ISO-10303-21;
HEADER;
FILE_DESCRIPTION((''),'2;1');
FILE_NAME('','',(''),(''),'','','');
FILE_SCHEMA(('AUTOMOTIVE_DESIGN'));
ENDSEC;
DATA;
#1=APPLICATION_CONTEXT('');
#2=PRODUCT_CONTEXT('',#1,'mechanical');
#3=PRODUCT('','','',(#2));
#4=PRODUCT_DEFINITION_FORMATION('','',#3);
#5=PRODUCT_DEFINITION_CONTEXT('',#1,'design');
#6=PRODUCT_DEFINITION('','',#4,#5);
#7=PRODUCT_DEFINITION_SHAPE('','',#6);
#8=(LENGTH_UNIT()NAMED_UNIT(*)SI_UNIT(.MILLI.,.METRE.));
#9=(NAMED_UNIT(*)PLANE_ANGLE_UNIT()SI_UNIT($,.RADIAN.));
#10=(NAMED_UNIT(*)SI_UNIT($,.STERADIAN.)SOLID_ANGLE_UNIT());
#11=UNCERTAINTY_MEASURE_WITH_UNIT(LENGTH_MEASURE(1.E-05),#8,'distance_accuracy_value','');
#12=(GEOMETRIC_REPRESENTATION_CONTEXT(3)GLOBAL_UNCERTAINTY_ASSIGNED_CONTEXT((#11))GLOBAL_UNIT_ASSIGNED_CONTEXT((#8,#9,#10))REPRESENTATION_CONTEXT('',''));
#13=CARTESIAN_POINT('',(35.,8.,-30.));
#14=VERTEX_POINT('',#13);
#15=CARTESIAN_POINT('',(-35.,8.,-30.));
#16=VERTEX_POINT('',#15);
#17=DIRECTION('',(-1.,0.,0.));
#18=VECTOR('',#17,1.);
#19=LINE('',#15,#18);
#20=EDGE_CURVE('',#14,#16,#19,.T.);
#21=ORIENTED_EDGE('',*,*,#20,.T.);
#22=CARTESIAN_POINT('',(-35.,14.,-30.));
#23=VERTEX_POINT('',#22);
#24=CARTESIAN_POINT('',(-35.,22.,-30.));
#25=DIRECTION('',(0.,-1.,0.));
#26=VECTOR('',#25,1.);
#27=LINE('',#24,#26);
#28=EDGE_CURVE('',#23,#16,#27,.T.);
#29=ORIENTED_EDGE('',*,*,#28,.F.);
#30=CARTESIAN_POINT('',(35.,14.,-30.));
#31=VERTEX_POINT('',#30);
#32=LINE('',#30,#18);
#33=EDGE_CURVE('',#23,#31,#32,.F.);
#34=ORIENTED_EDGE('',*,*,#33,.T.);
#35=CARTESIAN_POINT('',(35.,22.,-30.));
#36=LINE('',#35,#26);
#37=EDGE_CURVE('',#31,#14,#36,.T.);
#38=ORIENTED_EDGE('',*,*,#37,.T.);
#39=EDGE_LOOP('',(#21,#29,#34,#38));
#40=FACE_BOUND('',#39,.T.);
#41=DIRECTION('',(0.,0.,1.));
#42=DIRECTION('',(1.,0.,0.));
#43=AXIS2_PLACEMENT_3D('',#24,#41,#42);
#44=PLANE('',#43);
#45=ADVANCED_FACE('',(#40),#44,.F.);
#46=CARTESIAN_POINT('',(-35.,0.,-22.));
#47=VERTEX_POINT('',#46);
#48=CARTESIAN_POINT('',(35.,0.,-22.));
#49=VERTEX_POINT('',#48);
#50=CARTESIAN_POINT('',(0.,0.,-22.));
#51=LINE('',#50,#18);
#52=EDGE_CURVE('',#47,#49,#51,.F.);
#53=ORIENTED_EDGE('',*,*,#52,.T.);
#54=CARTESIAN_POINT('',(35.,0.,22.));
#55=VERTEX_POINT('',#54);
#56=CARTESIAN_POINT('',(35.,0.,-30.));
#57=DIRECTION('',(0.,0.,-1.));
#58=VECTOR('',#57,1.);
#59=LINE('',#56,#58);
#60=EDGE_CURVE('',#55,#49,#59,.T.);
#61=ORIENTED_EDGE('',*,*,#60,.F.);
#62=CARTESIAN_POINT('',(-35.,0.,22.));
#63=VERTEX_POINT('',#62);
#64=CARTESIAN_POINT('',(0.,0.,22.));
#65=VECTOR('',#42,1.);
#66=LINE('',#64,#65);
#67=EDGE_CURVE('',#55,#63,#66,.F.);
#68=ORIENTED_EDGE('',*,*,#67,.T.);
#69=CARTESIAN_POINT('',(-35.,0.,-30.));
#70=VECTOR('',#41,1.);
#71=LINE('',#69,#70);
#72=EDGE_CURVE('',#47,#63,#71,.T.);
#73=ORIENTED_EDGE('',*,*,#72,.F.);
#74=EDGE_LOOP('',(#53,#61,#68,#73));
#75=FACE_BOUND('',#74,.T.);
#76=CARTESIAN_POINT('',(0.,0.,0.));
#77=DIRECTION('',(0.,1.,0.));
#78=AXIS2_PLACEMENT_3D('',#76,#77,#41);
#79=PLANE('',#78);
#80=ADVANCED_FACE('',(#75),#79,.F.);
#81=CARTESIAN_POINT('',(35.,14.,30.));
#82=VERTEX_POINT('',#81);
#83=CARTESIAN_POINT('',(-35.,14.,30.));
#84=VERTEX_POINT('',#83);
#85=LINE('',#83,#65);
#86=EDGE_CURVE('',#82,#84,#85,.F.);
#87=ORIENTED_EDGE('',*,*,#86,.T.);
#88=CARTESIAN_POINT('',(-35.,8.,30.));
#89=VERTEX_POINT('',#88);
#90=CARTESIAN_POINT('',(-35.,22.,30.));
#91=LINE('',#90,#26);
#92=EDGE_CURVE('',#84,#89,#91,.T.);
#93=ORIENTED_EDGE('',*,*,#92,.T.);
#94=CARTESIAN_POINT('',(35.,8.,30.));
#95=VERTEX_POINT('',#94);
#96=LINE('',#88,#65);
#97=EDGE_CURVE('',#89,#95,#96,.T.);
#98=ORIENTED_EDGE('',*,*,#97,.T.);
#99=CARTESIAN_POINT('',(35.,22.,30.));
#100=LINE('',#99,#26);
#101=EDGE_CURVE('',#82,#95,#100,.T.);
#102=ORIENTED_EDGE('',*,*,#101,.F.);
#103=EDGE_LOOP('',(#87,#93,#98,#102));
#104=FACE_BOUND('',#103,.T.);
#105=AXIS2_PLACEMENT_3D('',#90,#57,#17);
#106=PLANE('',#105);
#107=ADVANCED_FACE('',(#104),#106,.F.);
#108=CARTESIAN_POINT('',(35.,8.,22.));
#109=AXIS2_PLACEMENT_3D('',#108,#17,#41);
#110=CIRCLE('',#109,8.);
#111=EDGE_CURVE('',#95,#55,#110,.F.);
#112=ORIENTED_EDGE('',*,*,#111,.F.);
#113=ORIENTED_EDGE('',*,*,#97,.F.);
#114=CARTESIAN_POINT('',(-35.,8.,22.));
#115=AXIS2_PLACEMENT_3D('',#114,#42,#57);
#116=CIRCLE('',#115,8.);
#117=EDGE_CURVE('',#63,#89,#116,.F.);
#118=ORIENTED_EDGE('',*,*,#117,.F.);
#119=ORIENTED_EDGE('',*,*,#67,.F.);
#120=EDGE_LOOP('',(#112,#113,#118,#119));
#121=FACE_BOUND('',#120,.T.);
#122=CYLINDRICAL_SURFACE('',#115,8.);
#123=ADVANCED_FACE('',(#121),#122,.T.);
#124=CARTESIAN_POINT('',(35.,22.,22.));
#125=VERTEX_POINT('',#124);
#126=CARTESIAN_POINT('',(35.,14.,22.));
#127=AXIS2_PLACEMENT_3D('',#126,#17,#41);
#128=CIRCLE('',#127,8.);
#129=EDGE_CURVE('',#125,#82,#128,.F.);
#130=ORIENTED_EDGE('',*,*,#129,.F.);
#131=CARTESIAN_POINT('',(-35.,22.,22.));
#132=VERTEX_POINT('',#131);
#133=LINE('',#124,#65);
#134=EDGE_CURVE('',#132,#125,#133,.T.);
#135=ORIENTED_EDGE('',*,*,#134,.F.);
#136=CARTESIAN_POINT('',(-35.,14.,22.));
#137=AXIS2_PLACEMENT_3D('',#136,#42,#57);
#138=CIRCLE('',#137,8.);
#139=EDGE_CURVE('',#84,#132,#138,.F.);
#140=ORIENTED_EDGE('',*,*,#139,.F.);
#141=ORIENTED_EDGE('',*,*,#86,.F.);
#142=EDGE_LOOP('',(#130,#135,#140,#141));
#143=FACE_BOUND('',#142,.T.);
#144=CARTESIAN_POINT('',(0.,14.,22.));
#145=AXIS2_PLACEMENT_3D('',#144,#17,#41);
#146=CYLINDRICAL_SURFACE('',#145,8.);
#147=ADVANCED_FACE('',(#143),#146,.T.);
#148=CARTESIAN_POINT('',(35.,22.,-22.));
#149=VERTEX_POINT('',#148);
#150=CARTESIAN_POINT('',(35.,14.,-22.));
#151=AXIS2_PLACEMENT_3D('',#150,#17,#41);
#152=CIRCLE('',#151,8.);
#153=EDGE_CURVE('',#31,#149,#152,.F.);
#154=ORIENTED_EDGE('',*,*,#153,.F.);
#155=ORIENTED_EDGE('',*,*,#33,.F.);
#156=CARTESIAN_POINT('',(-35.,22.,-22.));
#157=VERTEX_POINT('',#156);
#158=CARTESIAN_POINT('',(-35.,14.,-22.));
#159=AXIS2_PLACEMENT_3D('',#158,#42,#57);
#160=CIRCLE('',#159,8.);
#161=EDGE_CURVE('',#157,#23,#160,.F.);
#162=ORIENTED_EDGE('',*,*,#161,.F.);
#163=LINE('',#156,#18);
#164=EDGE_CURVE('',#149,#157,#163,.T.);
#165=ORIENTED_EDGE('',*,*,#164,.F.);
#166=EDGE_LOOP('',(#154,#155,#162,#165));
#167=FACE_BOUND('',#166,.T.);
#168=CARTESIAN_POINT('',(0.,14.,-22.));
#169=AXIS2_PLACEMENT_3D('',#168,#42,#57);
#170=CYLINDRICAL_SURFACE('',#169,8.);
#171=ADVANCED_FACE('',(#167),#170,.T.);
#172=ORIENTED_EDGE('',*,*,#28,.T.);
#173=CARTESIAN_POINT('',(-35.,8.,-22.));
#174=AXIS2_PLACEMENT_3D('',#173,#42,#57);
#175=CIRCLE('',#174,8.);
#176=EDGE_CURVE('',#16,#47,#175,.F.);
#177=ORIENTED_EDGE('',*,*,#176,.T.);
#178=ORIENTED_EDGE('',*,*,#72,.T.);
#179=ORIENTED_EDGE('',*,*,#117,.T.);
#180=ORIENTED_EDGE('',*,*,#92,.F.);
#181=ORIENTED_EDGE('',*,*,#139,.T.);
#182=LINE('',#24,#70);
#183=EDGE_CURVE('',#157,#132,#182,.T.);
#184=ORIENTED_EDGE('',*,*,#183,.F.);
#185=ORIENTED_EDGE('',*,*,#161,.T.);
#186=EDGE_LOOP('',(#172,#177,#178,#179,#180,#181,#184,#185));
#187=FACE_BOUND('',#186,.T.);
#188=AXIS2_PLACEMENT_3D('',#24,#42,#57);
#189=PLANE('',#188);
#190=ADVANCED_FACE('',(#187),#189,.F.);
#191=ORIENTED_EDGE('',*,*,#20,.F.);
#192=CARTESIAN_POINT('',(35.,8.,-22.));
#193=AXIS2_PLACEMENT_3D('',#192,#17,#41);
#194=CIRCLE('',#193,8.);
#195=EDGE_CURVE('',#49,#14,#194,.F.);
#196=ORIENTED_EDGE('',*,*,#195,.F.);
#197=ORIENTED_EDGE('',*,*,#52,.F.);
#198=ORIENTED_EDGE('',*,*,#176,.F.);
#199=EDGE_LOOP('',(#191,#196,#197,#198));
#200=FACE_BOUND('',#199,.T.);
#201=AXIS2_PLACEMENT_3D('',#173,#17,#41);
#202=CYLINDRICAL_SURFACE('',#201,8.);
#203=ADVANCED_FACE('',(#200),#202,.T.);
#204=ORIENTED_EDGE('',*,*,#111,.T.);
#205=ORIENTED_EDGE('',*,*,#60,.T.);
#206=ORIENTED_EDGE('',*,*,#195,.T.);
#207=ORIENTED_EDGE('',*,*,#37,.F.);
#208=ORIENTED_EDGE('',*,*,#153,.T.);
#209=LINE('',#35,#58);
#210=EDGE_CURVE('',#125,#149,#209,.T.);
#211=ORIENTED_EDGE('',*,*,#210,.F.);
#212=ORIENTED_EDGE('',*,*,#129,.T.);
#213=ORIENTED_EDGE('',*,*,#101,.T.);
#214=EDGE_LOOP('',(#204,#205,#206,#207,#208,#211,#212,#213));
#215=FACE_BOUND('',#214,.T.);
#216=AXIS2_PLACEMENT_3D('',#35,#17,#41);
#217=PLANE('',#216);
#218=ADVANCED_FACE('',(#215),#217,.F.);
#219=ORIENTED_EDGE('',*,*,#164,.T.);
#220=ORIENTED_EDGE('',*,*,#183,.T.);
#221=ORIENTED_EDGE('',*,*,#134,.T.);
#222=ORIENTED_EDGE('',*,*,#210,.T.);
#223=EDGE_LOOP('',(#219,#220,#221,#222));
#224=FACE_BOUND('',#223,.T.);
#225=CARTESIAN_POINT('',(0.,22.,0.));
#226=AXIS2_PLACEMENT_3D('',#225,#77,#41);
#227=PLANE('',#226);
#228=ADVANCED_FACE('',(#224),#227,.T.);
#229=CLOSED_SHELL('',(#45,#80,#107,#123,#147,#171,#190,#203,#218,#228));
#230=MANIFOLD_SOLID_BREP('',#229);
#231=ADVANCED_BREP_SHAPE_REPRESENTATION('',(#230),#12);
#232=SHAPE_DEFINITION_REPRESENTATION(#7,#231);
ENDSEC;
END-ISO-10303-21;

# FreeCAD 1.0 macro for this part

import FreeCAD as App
import Part
import Sketcher


def edges_at(feature, points):
    """Names of the edges that pass closest to the given points."""
    edges = feature.Shape.Edges
    near = lambda p: min(range(len(edges)), key=lambda i: edges[i].distToShape(Part.Vertex(*p))[0])
    return sorted({f"Edge{near(p) + 1}" for p in points})

doc = App.newDocument("Part")
body = doc.addObject("PartDesign::Body", "Body")

sketch1 = body.newObject("Sketcher::SketchObject", "Sketch")
sketch1.AttachmentSupport = (doc.getObject("XZ_Plane"), [""])
sketch1.MapMode = "FlatFace"
sketch1.addGeometry(Part.LineSegment(App.Vector(-35, -30, 0), App.Vector(-35, 30, 0)), False)
sketch1.addGeometry(Part.LineSegment(App.Vector(-35, 30, 0), App.Vector(35, 30, 0)), False)
sketch1.addGeometry(Part.LineSegment(App.Vector(35, 30, 0), App.Vector(35, -30, 0)), False)
sketch1.addGeometry(Part.LineSegment(App.Vector(35, -30, 0), App.Vector(-35, -30, 0)), False)
sketch1.addConstraint(Sketcher.Constraint("Coincident", 0, 2, 1, 1))
sketch1.addConstraint(Sketcher.Constraint("Coincident", 1, 2, 2, 1))
sketch1.addConstraint(Sketcher.Constraint("Coincident", 2, 2, 3, 1))
sketch1.addConstraint(Sketcher.Constraint("Coincident", 3, 2, 0, 1))
sketch1.addConstraint(Sketcher.Constraint("Vertical", 0))
sketch1.addConstraint(Sketcher.Constraint("Horizontal", 1))
sketch1.addConstraint(Sketcher.Constraint("Vertical", 2))
sketch1.addConstraint(Sketcher.Constraint("Horizontal", 3))
sketch1.addConstraint(Sketcher.Constraint("Symmetric", 0, 2, 2, 2, -1, 1))
sketch1.addConstraint(Sketcher.Constraint("DistanceX", 1, 1, 1, 2, 70.0))
sketch1.addConstraint(Sketcher.Constraint("DistanceY", 0, 1, 0, 2, 60.0))
pad1 = body.newObject("PartDesign::Pad", "Pad")
pad1.Profile = sketch1
pad1.Length = 22
pad1.Reversed = True
doc.recompute()

fillet = body.newObject("PartDesign::Fillet", "Fillet")
fillet.Base = (pad1, edges_at(pad1, [
    (0, 22, 30),
    (0, 0, 30),
    (0, 0, -30),
    (0, 22, -30),
]))
fillet.Radius = 8

doc.recompute()
